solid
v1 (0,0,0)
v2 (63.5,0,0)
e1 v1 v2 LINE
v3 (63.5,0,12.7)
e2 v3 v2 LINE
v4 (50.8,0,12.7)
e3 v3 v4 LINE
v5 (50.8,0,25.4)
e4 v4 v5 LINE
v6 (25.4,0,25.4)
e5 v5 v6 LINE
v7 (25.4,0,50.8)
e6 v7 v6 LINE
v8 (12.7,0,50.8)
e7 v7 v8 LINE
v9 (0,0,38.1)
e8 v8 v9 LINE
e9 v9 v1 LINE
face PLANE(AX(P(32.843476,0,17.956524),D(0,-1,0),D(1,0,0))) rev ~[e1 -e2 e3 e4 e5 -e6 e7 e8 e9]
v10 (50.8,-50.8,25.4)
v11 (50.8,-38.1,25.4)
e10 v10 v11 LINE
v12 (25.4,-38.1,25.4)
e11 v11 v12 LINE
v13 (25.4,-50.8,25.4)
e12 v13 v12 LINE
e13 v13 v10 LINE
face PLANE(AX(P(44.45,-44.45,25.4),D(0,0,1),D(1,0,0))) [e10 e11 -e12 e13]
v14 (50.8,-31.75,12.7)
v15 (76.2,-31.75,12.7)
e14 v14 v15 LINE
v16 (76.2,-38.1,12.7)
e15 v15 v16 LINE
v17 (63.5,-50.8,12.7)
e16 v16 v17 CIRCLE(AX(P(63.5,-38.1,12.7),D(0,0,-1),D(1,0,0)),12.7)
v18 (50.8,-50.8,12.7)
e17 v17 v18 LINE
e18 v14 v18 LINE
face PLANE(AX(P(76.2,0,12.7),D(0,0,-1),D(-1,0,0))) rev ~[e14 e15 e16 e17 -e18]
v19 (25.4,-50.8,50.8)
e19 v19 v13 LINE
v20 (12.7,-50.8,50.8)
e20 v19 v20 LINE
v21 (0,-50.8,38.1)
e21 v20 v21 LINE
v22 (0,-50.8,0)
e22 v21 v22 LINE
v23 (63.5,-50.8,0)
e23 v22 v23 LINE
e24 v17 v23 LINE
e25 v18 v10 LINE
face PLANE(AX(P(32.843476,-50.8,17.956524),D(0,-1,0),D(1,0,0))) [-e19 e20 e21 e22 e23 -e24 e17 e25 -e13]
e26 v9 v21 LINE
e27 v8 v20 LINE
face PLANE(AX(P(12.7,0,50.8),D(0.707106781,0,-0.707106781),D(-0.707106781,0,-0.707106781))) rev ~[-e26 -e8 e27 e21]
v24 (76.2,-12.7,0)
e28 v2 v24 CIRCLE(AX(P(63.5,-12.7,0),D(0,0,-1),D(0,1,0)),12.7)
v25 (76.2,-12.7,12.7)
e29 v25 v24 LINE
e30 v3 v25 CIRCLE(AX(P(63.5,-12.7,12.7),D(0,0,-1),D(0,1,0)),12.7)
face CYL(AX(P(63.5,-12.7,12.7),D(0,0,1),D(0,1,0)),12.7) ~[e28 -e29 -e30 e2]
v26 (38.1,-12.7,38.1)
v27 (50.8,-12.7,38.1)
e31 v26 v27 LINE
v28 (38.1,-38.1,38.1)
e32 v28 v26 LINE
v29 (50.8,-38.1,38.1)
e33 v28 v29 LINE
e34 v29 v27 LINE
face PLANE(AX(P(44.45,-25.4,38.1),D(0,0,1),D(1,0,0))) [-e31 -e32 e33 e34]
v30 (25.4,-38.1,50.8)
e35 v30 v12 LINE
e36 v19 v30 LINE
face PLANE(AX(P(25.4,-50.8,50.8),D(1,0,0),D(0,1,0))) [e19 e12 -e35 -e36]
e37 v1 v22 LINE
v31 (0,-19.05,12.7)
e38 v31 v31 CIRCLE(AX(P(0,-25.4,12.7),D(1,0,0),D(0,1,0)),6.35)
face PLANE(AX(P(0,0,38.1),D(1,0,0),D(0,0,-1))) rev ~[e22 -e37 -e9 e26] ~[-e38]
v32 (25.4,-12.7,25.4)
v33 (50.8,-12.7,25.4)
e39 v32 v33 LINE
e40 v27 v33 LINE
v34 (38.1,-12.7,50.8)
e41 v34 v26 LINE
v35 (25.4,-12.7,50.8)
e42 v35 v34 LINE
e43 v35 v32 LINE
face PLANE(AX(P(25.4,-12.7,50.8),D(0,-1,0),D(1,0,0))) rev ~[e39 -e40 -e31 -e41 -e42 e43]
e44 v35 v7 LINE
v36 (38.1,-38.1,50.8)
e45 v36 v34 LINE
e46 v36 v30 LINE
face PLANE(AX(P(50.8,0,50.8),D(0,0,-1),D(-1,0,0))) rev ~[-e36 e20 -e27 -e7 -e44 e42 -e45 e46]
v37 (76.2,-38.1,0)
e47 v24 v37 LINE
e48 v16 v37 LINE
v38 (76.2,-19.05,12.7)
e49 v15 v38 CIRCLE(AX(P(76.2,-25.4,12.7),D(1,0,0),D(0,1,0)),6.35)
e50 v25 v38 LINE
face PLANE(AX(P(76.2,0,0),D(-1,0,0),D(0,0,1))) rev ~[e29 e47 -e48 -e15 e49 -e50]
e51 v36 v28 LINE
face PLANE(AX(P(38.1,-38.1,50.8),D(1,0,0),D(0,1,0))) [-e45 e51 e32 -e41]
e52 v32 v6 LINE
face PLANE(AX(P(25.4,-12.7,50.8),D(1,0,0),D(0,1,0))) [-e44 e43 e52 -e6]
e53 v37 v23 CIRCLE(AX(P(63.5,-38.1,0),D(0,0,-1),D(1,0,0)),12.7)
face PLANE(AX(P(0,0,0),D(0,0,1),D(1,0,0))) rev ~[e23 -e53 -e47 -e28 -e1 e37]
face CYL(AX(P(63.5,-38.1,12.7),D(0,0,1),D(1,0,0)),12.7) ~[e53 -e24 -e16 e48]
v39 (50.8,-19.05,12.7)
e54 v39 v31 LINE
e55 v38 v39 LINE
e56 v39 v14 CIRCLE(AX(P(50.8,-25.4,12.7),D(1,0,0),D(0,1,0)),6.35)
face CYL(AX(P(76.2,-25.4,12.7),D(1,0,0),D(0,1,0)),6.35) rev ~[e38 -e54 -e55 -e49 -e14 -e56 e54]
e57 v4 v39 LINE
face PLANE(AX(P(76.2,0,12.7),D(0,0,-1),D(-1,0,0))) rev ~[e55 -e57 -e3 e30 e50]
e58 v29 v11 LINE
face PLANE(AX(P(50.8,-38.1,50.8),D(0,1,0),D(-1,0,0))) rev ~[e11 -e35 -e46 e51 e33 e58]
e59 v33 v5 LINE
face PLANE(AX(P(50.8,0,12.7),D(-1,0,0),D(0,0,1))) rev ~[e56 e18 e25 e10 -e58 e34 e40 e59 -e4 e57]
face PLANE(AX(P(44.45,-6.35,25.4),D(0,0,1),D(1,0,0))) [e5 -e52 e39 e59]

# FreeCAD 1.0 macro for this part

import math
import FreeCAD as App
import Part
import Sketcher
Q = App.Units.Quantity


def add_polygon(sketch, points):
    """Adds a closed chain of lines whose ends are joined by coincident constraints."""
    first, n = sketch.GeometryCount, len(points)
    for a, b in zip(points, points[1:] + points[:1]):
        sketch.addGeometry(Part.LineSegment(App.Vector(*a, 0), App.Vector(*b, 0)), False)
    for i in range(n):
        sketch.addConstraint(Sketcher.Constraint("Coincident", first + i, 2, first + (i + 1) % n, 1))

doc = App.newDocument("Part")
params = doc.addObject("Spreadsheet::Sheet", "Params")
for row, (alias, value) in enumerate([
    ("sketch1_width", "3 in"),
    ("sketch1_width2", "1 in"),
    ("sketch1_width3", "1.5 in"),
    ("sketch1_height", "0.5 in"),
    ("pad1_length", "2 in"),
    ("sketch2_width", "1 in"),
    ("sketch2_height", "0.5 in"),
    ("pocket1_length", "1 in"),
    ("sketch3_height", "1 in"),
    ("sketch3_width", "0.5 in"),
    ("pocket2_length", "0.5 in"),
    ("sketch4_radius", "0.5 in"),
    ("pocket3_length", "0.5 in"),
    ("sketch5_diameter", "0.5 in"),
    ("pocket4_length", "3 in"),
], start=1):
    params.set(f"A{row}", alias)
    params.set(f"B{row}", "=" + value)
    params.setAlias(f"B{row}", alias)

body = doc.addObject("PartDesign::Body", "Body")

sketch1 = doc.addObject("Sketcher::SketchObject", "Sketch")
body.addObject(sketch1)
sketch1.AttachmentSupport = (doc.XZ_Plane, [""])
sketch1.MapMode = "FlatFace"
add_polygon(sketch1, [(0, 38), (0, 0), (76, 0), (76, 13), (51, 13), (51, 51), (13, 51)])
sketch1.addConstraint(Sketcher.Constraint("Vertical", 0))
sketch1.addConstraint(Sketcher.Constraint("Horizontal", 1))
sketch1.addConstraint(Sketcher.Constraint("Vertical", 2))
sketch1.addConstraint(Sketcher.Constraint("Horizontal", 3))
sketch1.addConstraint(Sketcher.Constraint("Vertical", 4))
sketch1.addConstraint(Sketcher.Constraint("Horizontal", 5))
sketch1.addConstraint(Sketcher.Constraint("Coincident", 0, 2, -1, 1))
sketch1.addConstraint(Sketcher.Constraint("Equal", 5, 0))
sketch1.addConstraint(Sketcher.Constraint("Equal", 0, 4))
sketch1.addConstraint(Sketcher.Constraint("DistanceX", 1, 1, 1, 2, Q("3 in")))
sketch1.addConstraint(Sketcher.Constraint("DistanceX", 3, 2, 3, 1, Q("1 in")))
sketch1.addConstraint(Sketcher.Constraint("DistanceX", 5, 2, 5, 1, Q("1.5 in")))
sketch1.addConstraint(Sketcher.Constraint("DistanceY", 2, 1, 2, 2, Q("0.5 in")))
sketch1.setExpression("Constraints[16]", "Params.sketch1_width")
sketch1.setExpression("Constraints[17]", "Params.sketch1_width2")
sketch1.setExpression("Constraints[18]", "Params.sketch1_width3")
sketch1.setExpression("Constraints[19]", "Params.sketch1_height")
pad1 = doc.addObject("PartDesign::Pad", "Pad")
body.addObject(pad1)
pad1.Profile = sketch1
pad1.setExpression("Length", "Params.pad1_length")

sketch2 = doc.addObject("Sketcher::SketchObject", "Sketch001")
body.addObject(sketch2)
sketch2.AttachmentSupport = (doc.XY_Plane, [""])
sketch2.MapMode = "FlatFace"
sketch2.AttachmentOffset = App.Placement(App.Vector(0, 0, 2 * 25.4), App.Rotation())
add_polygon(sketch2, [(51, -51), (51, -38), (25, -38), (25, -51)])
add_polygon(sketch2, [(51, -13), (51, 0), (25, 0), (25, -13)])
sketch2.addConstraint(Sketcher.Constraint("Vertical", 0))
sketch2.addConstraint(Sketcher.Constraint("Horizontal", 1))
sketch2.addConstraint(Sketcher.Constraint("Vertical", 2))
sketch2.addConstraint(Sketcher.Constraint("Horizontal", 3))
sketch2.addConstraint(Sketcher.Constraint("Vertical", 4))
sketch2.addConstraint(Sketcher.Constraint("Horizontal", 5))
sketch2.addConstraint(Sketcher.Constraint("Vertical", 6))
sketch2.addConstraint(Sketcher.Constraint("Horizontal", 7))
sketch2.addConstraint(Sketcher.Constraint("PointOnObject", 4, 2, -1))
sketch2.addConstraint(Sketcher.Constraint("Vertical", 3, 2, 4, 2))
sketch2.addConstraint(Sketcher.Constraint("Vertical", 2, 2, 5, 2))
sketch2.addConstraint(Sketcher.Constraint("Equal", 2, 4))
sketch2.addConstraint(Sketcher.Constraint("DistanceX", 1, 2, 1, 1, Q("1 in")))
sketch2.addConstraint(Sketcher.Constraint("DistanceY", 0, 1, 0, 2, Q("0.5 in")))
sketch2.addConstraint(Sketcher.Constraint("DistanceX", -1, 1, 0, 2, Q("2 in")))
sketch2.addConstraint(Sketcher.Constraint("DistanceY", 2, 2, -1, 1, Q("2 in")))
sketch2.setExpression("Constraints[20]", "Params.sketch2_width")
sketch2.setExpression("Constraints[21]", "Params.sketch2_height")
pocket1 = doc.addObject("PartDesign::Pocket", "Pocket")
body.addObject(pocket1)
pocket1.Profile = sketch2
pocket1.setExpression("Length", "Params.pocket1_length")

sketch3 = doc.addObject("Sketcher::SketchObject", "Sketch002")
body.addObject(sketch3)
sketch3.AttachmentSupport = (doc.XY_Plane, [""])
sketch3.MapMode = "FlatFace"
sketch3.AttachmentOffset = App.Placement(App.Vector(0, 0, 2 * 25.4), App.Rotation())
add_polygon(sketch3, [(38, -13), (38, -38), (51, -38), (51, -13)])
sketch3.addConstraint(Sketcher.Constraint("Vertical", 0))
sketch3.addConstraint(Sketcher.Constraint("Horizontal", 1))
sketch3.addConstraint(Sketcher.Constraint("Vertical", 2))
sketch3.addConstraint(Sketcher.Constraint("Horizontal", 3))
sketch3.addConstraint(Sketcher.Constraint("DistanceY", 0, 2, 0, 1, Q("1 in")))
sketch3.addConstraint(Sketcher.Constraint("DistanceX", 1, 1, 1, 2, Q("0.5 in")))
sketch3.addConstraint(Sketcher.Constraint("DistanceX", -1, 1, 1, 2, Q("2 in")))
sketch3.addConstraint(Sketcher.Constraint("DistanceY", 0, 2, -1, 1, Q("1.5 in")))
sketch3.setExpression("Constraints[8]", "Params.sketch3_height")
sketch3.setExpression("Constraints[9]", "Params.sketch3_width")
pocket2 = doc.addObject("PartDesign::Pocket", "Pocket001")
body.addObject(pocket2)
pocket2.Profile = sketch3
pocket2.setExpression("Length", "Params.pocket2_length")

sketch4 = doc.addObject("Sketcher::SketchObject", "Sketch003")
body.addObject(sketch4)
sketch4.AttachmentSupport = (doc.XY_Plane, [""])
sketch4.MapMode = "FlatFace"
sketch4.AttachmentOffset = App.Placement(App.Vector(0, 0, 0.5 * 25.4), App.Rotation())
sketch4.addGeometry(Part.ArcOfCircle(Part.Circle(App.Vector(64, -13, 0), App.Vector(0, 0, 1), 13), math.radians(0), math.radians(90)), False)
sketch4.addGeometry(Part.LineSegment(App.Vector(76, -13, 0), App.Vector(76, 0, 0)), False)
sketch4.addGeometry(Part.LineSegment(App.Vector(76, 0, 0), App.Vector(64, 0, 0)), False)
sketch4.addGeometry(Part.ArcOfCircle(Part.Circle(App.Vector(64, -38, 0), App.Vector(0, 0, 1), 13), math.radians(-90), math.radians(0)), False)
sketch4.addGeometry(Part.LineSegment(App.Vector(64, -51, 0), App.Vector(76, -51, 0)), False)
sketch4.addGeometry(Part.LineSegment(App.Vector(76, -51, 0), App.Vector(76, -38, 0)), False)
sketch4.addConstraint(Sketcher.Constraint("Tangent", 0, 1, 1, 1))
sketch4.addConstraint(Sketcher.Constraint("Coincident", 1, 2, 2, 1))
sketch4.addConstraint(Sketcher.Constraint("Tangent", 2, 2, 0, 2))
sketch4.addConstraint(Sketcher.Constraint("Tangent", 3, 1, 4, 1))
sketch4.addConstraint(Sketcher.Constraint("Coincident", 4, 2, 5, 1))
sketch4.addConstraint(Sketcher.Constraint("Tangent", 5, 2, 3, 2))
sketch4.addConstraint(Sketcher.Constraint("Vertical", 1))
sketch4.addConstraint(Sketcher.Constraint("Horizontal", 2))
sketch4.addConstraint(Sketcher.Constraint("Horizontal", 4))
sketch4.addConstraint(Sketcher.Constraint("Vertical", 5))
sketch4.addConstraint(Sketcher.Constraint("Equal", 0, 3))
sketch4.addConstraint(Sketcher.Constraint("PointOnObject", 1, 2, -1))
sketch4.addConstraint(Sketcher.Constraint("Vertical", 0, 3, 3, 3))
sketch4.addConstraint(Sketcher.Constraint("Radius", 0, Q("0.5 in")))
sketch4.addConstraint(Sketcher.Constraint("DistanceX", -1, 1, 0, 1, Q("3 in")))
sketch4.addConstraint(Sketcher.Constraint("DistanceY", 3, 1, -1, 1, Q("2 in")))
sketch4.setExpression("Constraints[13]", "Params.sketch4_radius")
pocket3 = doc.addObject("PartDesign::Pocket", "Pocket002")
body.addObject(pocket3)
pocket3.Profile = sketch4
pocket3.setExpression("Length", "Params.pocket3_length")

sketch5 = doc.addObject("Sketcher::SketchObject", "Sketch004")
body.addObject(sketch5)
sketch5.AttachmentSupport = (doc.YZ_Plane, [""])
sketch5.MapMode = "FlatFace"
sketch5.AttachmentOffset = App.Placement(App.Vector(0, 0, 3 * 25.4), App.Rotation())
sketch5.addGeometry(Part.Circle(App.Vector(-25, 13, 0), App.Vector(0, 0, 1), 6), False)
sketch5.addConstraint(Sketcher.Constraint("Diameter", 0, Q("0.5 in")))
sketch5.addConstraint(Sketcher.Constraint("DistanceX", 0, 3, -1, 1, Q("1 in")))
sketch5.addConstraint(Sketcher.Constraint("DistanceY", -1, 1, 0, 3, Q("0.5 in")))
sketch5.setExpression("Constraints[0]", "Params.sketch5_diameter")
pocket4 = doc.addObject("PartDesign::Pocket", "Pocket003")
body.addObject(pocket4)
pocket4.Profile = sketch5
pocket4.setExpression("Length", "Params.pocket4_length")

doc.recompute()
